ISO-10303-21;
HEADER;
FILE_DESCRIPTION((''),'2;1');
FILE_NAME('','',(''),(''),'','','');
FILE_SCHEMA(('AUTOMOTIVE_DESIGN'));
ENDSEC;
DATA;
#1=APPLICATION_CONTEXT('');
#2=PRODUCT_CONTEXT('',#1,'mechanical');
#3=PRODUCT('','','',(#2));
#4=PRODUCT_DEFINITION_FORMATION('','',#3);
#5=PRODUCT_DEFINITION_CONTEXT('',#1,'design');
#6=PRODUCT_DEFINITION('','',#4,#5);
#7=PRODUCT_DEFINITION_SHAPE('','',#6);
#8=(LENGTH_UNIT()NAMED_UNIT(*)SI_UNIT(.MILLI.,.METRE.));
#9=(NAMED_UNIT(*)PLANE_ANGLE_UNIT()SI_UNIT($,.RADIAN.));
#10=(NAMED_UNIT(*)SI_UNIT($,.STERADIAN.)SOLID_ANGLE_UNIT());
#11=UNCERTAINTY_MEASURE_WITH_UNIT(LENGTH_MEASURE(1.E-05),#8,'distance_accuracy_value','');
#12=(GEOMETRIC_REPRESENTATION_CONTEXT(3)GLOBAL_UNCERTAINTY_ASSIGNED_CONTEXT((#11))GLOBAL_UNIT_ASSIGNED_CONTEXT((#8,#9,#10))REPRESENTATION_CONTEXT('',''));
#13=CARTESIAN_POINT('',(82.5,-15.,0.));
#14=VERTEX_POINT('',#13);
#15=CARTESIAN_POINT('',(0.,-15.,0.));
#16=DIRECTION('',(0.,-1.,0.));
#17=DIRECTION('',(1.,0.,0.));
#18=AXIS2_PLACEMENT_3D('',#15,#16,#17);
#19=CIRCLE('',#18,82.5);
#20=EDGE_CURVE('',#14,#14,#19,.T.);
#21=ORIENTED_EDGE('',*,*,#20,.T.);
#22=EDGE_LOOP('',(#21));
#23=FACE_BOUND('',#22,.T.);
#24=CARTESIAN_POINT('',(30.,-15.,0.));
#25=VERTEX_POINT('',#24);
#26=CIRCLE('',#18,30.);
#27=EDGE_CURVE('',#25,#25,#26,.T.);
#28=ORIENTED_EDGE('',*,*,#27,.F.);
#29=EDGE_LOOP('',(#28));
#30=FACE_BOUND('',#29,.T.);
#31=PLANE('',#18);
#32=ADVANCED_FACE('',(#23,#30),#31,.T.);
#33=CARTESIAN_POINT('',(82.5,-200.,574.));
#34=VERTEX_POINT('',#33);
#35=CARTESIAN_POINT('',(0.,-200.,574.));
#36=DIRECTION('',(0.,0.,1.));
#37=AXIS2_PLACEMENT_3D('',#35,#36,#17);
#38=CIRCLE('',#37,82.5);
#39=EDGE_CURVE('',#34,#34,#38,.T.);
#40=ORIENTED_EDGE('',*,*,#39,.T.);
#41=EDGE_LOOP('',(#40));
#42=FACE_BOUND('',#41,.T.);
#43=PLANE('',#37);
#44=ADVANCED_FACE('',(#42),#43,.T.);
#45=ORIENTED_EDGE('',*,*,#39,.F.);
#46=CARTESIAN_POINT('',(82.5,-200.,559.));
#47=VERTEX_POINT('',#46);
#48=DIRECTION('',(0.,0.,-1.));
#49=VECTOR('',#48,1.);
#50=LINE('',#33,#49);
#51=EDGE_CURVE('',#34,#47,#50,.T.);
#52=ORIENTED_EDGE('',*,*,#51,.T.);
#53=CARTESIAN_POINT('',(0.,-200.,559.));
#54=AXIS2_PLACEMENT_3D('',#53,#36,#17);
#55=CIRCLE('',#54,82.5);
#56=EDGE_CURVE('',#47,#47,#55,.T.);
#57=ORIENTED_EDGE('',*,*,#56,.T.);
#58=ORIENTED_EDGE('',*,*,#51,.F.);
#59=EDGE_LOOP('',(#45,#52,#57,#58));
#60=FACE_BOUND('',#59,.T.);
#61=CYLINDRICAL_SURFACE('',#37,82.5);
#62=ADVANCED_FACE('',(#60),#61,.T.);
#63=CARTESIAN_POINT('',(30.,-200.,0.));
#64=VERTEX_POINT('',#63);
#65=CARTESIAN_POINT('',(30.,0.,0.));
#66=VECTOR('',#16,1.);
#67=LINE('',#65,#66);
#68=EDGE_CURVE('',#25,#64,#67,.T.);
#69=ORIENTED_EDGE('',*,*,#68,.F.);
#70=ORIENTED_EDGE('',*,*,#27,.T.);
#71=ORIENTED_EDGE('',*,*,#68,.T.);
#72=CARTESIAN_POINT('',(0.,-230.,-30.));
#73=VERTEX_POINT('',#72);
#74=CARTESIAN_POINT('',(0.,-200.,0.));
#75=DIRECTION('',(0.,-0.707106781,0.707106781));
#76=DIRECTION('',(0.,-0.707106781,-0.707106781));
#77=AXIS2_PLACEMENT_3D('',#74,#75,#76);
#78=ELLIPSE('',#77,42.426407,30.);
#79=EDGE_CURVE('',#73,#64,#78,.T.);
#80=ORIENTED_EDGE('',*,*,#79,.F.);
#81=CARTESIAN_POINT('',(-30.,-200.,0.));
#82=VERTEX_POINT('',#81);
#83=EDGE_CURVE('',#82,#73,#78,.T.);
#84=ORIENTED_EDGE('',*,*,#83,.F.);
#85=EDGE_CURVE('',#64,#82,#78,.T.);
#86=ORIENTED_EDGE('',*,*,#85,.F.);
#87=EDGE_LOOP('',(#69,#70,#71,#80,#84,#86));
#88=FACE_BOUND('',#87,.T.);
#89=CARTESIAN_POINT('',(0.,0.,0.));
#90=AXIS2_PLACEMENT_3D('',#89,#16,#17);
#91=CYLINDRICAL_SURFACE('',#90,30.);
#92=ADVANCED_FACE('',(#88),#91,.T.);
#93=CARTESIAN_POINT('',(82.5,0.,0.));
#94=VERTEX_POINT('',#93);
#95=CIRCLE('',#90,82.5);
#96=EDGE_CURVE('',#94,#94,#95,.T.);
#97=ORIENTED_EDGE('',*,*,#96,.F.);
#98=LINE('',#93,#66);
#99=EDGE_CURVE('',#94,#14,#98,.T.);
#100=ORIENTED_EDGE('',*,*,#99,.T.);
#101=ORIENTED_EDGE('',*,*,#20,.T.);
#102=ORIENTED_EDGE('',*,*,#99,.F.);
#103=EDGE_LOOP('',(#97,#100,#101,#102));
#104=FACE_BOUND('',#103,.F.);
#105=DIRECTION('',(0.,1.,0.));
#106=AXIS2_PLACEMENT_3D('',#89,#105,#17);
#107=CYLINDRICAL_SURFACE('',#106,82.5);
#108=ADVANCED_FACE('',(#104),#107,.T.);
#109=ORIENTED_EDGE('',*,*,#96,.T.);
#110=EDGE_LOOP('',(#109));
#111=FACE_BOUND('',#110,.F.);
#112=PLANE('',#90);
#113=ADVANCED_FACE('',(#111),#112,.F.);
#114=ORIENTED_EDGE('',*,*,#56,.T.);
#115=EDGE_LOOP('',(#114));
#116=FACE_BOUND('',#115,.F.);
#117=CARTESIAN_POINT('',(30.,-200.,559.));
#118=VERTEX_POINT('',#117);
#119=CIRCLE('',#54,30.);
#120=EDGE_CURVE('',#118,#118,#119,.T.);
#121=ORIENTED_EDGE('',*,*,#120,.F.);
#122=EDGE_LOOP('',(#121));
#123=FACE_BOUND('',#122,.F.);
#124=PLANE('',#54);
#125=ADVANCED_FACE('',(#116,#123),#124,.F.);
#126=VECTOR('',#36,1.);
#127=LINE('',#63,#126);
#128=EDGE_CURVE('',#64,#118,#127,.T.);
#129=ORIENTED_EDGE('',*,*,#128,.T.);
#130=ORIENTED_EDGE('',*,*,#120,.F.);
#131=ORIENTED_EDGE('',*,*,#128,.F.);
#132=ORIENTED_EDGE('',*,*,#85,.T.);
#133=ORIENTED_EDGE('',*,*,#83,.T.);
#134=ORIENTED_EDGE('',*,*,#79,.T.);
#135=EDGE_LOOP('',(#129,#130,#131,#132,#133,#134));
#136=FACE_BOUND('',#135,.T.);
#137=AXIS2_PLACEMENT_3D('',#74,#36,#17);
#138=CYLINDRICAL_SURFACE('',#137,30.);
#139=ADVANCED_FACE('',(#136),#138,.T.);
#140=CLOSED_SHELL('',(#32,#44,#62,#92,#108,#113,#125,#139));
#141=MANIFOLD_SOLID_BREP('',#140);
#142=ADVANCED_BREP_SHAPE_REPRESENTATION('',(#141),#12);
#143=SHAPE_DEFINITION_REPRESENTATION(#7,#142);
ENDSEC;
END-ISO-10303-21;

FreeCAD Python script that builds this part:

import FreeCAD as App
import Part
import Sketcher

V = App.Vector

doc = App.newDocument("Part")
params = doc.addObject("Spreadsheet::Sheet", "Params")
for row, (alias, value) in enumerate([
    ("sketch1_diameter", "60 mm"),
    ("sketch2_width", "200 mm"),
    ("sketch2_height", "574 mm"),
    ("sketch3_diameter", "165 mm"),
    ("sketch3_diameter2", "60 mm"),
    ("pad1_length", "15 mm"),
    ("sketch4_diameter", "165 mm"),
    ("sketch4_diameter2", "60 mm"),
    ("pad2_length", "15 mm"),
], start=1):
    params.set(f"A{row}", alias)
    params.set(f"B{row}", "=" + value)
    params.setAlias(f"B{row}", alias)

body = doc.addObject("PartDesign::Body", "Body")

# Sketch on XZ plane
sketch1 = body.newObject("Sketcher::SketchObject", "Sketch")
sketch1.AttachmentSupport = (doc.getObject("XZ_Plane"), [""])
sketch1.MapMode = "FlatFace"
sketch1.addGeometry(Part.Circle(V(0, 0, 0), V(0, 0, 1), 30), False)
sketch1.addConstraint(Sketcher.Constraint("Coincident", 0, 3, -1, 1))
sketch1.addConstraint(Sketcher.Constraint("Diameter", 0, 60.0))
sketch1.setExpression("Constraints[1]", "Params.sketch1_diameter")

# Sketch on YZ plane
sketch2 = body.newObject("Sketcher::SketchObject", "Sketch001")
sketch2.AttachmentSupport = (doc.getObject("YZ_Plane"), [""])
sketch2.MapMode = "FlatFace"
sketch2.addGeometry(Part.LineSegment(V(0, 0, 0), V(-200, 0, 0)), False)
sketch2.addGeometry(Part.LineSegment(V(-200, 0, 0), V(-200, 574, 0)), False)
sketch2.addConstraint(Sketcher.Constraint("Coincident", 0, 2, 1, 1))
sketch2.addConstraint(Sketcher.Constraint("Horizontal", 0))
sketch2.addConstraint(Sketcher.Constraint("Vertical", 1))
sketch2.addConstraint(Sketcher.Constraint("Coincident", 0, 1, -1, 1))
sketch2.addConstraint(Sketcher.Constraint("DistanceX", 0, 2, 0, 1, 200.0))
sketch2.addConstraint(Sketcher.Constraint("DistanceY", 1, 1, 1, 2, 574.0))
sketch2.setExpression("Constraints[4]", "Params.sketch2_width")
sketch2.setExpression("Constraints[5]", "Params.sketch2_height")
doc.recompute()

additivepipe = body.newObject("PartDesign::AdditivePipe", "AdditivePipe")
additivepipe.Profile = sketch1
additivepipe.Spine = (sketch2, ["Edge1", "Edge2"])
additivepipe.Transition = "Right corner"

# Sketch on XZ plane
sketch3 = body.newObject("Sketcher::SketchObject", "Sketch002")
sketch3.AttachmentSupport = (doc.getObject("XZ_Plane"), [""])
sketch3.MapMode = "FlatFace"
sketch3.addGeometry(Part.Circle(V(0, 0, 0), V(0, 0, 1), 82), False)
sketch3.addGeometry(Part.Circle(V(0, 0, 0), V(0, 0, 1), 30), False)
sketch3.addConstraint(Sketcher.Constraint("Coincident", 0, 3, -1, 1))
sketch3.addConstraint(Sketcher.Constraint("Coincident", 1, 3, -1, 1))
sketch3.addConstraint(Sketcher.Constraint("Diameter", 0, 165.0))
sketch3.addConstraint(Sketcher.Constraint("Diameter", 1, 60.0))
sketch3.setExpression("Constraints[2]", "Params.sketch3_diameter")
sketch3.setExpression("Constraints[3]", "Params.sketch3_diameter2")
pad1 = body.newObject("PartDesign::Pad", "Pad")
pad1.Profile = sketch3
pad1.setExpression("Length", "Params.pad1_length")

# Sketch on XY plane
sketch4 = body.newObject("Sketcher::SketchObject", "Sketch003")
sketch4.AttachmentSupport = (doc.getObject("XY_Plane"), [""])
sketch4.MapMode = "FlatFace"
sketch4.AttachmentOffset = App.Placement(V(0, 0, 574), App.Rotation())
sketch4.addGeometry(Part.Circle(V(0, -200, 0), V(0, 0, 1), 82), False)
sketch4.addGeometry(Part.Circle(V(0, -200, 0), V(0, 0, 1), 30), False)
sketch4.addConstraint(Sketcher.Constraint("Coincident", 1, 3, 0, 3))
sketch4.addConstraint(Sketcher.Constraint("PointOnObject", 0, 3, -2))
sketch4.addConstraint(Sketcher.Constraint("Diameter", 0, 165.0))
sketch4.addConstraint(Sketcher.Constraint("Diameter", 1, 60.0))
sketch4.addConstraint(Sketcher.Constraint("DistanceY", 0, 3, -1, 1, 200.0))
sketch4.setExpression("Constraints[2]", "Params.sketch4_diameter")
sketch4.setExpression("Constraints[3]", "Params.sketch4_diameter2")
pad2 = body.newObject("PartDesign::Pad", "Pad001")
pad2.Profile = sketch4
pad2.setExpression("Length", "Params.pad2_length")
pad2.Reversed = True

doc.recompute()
